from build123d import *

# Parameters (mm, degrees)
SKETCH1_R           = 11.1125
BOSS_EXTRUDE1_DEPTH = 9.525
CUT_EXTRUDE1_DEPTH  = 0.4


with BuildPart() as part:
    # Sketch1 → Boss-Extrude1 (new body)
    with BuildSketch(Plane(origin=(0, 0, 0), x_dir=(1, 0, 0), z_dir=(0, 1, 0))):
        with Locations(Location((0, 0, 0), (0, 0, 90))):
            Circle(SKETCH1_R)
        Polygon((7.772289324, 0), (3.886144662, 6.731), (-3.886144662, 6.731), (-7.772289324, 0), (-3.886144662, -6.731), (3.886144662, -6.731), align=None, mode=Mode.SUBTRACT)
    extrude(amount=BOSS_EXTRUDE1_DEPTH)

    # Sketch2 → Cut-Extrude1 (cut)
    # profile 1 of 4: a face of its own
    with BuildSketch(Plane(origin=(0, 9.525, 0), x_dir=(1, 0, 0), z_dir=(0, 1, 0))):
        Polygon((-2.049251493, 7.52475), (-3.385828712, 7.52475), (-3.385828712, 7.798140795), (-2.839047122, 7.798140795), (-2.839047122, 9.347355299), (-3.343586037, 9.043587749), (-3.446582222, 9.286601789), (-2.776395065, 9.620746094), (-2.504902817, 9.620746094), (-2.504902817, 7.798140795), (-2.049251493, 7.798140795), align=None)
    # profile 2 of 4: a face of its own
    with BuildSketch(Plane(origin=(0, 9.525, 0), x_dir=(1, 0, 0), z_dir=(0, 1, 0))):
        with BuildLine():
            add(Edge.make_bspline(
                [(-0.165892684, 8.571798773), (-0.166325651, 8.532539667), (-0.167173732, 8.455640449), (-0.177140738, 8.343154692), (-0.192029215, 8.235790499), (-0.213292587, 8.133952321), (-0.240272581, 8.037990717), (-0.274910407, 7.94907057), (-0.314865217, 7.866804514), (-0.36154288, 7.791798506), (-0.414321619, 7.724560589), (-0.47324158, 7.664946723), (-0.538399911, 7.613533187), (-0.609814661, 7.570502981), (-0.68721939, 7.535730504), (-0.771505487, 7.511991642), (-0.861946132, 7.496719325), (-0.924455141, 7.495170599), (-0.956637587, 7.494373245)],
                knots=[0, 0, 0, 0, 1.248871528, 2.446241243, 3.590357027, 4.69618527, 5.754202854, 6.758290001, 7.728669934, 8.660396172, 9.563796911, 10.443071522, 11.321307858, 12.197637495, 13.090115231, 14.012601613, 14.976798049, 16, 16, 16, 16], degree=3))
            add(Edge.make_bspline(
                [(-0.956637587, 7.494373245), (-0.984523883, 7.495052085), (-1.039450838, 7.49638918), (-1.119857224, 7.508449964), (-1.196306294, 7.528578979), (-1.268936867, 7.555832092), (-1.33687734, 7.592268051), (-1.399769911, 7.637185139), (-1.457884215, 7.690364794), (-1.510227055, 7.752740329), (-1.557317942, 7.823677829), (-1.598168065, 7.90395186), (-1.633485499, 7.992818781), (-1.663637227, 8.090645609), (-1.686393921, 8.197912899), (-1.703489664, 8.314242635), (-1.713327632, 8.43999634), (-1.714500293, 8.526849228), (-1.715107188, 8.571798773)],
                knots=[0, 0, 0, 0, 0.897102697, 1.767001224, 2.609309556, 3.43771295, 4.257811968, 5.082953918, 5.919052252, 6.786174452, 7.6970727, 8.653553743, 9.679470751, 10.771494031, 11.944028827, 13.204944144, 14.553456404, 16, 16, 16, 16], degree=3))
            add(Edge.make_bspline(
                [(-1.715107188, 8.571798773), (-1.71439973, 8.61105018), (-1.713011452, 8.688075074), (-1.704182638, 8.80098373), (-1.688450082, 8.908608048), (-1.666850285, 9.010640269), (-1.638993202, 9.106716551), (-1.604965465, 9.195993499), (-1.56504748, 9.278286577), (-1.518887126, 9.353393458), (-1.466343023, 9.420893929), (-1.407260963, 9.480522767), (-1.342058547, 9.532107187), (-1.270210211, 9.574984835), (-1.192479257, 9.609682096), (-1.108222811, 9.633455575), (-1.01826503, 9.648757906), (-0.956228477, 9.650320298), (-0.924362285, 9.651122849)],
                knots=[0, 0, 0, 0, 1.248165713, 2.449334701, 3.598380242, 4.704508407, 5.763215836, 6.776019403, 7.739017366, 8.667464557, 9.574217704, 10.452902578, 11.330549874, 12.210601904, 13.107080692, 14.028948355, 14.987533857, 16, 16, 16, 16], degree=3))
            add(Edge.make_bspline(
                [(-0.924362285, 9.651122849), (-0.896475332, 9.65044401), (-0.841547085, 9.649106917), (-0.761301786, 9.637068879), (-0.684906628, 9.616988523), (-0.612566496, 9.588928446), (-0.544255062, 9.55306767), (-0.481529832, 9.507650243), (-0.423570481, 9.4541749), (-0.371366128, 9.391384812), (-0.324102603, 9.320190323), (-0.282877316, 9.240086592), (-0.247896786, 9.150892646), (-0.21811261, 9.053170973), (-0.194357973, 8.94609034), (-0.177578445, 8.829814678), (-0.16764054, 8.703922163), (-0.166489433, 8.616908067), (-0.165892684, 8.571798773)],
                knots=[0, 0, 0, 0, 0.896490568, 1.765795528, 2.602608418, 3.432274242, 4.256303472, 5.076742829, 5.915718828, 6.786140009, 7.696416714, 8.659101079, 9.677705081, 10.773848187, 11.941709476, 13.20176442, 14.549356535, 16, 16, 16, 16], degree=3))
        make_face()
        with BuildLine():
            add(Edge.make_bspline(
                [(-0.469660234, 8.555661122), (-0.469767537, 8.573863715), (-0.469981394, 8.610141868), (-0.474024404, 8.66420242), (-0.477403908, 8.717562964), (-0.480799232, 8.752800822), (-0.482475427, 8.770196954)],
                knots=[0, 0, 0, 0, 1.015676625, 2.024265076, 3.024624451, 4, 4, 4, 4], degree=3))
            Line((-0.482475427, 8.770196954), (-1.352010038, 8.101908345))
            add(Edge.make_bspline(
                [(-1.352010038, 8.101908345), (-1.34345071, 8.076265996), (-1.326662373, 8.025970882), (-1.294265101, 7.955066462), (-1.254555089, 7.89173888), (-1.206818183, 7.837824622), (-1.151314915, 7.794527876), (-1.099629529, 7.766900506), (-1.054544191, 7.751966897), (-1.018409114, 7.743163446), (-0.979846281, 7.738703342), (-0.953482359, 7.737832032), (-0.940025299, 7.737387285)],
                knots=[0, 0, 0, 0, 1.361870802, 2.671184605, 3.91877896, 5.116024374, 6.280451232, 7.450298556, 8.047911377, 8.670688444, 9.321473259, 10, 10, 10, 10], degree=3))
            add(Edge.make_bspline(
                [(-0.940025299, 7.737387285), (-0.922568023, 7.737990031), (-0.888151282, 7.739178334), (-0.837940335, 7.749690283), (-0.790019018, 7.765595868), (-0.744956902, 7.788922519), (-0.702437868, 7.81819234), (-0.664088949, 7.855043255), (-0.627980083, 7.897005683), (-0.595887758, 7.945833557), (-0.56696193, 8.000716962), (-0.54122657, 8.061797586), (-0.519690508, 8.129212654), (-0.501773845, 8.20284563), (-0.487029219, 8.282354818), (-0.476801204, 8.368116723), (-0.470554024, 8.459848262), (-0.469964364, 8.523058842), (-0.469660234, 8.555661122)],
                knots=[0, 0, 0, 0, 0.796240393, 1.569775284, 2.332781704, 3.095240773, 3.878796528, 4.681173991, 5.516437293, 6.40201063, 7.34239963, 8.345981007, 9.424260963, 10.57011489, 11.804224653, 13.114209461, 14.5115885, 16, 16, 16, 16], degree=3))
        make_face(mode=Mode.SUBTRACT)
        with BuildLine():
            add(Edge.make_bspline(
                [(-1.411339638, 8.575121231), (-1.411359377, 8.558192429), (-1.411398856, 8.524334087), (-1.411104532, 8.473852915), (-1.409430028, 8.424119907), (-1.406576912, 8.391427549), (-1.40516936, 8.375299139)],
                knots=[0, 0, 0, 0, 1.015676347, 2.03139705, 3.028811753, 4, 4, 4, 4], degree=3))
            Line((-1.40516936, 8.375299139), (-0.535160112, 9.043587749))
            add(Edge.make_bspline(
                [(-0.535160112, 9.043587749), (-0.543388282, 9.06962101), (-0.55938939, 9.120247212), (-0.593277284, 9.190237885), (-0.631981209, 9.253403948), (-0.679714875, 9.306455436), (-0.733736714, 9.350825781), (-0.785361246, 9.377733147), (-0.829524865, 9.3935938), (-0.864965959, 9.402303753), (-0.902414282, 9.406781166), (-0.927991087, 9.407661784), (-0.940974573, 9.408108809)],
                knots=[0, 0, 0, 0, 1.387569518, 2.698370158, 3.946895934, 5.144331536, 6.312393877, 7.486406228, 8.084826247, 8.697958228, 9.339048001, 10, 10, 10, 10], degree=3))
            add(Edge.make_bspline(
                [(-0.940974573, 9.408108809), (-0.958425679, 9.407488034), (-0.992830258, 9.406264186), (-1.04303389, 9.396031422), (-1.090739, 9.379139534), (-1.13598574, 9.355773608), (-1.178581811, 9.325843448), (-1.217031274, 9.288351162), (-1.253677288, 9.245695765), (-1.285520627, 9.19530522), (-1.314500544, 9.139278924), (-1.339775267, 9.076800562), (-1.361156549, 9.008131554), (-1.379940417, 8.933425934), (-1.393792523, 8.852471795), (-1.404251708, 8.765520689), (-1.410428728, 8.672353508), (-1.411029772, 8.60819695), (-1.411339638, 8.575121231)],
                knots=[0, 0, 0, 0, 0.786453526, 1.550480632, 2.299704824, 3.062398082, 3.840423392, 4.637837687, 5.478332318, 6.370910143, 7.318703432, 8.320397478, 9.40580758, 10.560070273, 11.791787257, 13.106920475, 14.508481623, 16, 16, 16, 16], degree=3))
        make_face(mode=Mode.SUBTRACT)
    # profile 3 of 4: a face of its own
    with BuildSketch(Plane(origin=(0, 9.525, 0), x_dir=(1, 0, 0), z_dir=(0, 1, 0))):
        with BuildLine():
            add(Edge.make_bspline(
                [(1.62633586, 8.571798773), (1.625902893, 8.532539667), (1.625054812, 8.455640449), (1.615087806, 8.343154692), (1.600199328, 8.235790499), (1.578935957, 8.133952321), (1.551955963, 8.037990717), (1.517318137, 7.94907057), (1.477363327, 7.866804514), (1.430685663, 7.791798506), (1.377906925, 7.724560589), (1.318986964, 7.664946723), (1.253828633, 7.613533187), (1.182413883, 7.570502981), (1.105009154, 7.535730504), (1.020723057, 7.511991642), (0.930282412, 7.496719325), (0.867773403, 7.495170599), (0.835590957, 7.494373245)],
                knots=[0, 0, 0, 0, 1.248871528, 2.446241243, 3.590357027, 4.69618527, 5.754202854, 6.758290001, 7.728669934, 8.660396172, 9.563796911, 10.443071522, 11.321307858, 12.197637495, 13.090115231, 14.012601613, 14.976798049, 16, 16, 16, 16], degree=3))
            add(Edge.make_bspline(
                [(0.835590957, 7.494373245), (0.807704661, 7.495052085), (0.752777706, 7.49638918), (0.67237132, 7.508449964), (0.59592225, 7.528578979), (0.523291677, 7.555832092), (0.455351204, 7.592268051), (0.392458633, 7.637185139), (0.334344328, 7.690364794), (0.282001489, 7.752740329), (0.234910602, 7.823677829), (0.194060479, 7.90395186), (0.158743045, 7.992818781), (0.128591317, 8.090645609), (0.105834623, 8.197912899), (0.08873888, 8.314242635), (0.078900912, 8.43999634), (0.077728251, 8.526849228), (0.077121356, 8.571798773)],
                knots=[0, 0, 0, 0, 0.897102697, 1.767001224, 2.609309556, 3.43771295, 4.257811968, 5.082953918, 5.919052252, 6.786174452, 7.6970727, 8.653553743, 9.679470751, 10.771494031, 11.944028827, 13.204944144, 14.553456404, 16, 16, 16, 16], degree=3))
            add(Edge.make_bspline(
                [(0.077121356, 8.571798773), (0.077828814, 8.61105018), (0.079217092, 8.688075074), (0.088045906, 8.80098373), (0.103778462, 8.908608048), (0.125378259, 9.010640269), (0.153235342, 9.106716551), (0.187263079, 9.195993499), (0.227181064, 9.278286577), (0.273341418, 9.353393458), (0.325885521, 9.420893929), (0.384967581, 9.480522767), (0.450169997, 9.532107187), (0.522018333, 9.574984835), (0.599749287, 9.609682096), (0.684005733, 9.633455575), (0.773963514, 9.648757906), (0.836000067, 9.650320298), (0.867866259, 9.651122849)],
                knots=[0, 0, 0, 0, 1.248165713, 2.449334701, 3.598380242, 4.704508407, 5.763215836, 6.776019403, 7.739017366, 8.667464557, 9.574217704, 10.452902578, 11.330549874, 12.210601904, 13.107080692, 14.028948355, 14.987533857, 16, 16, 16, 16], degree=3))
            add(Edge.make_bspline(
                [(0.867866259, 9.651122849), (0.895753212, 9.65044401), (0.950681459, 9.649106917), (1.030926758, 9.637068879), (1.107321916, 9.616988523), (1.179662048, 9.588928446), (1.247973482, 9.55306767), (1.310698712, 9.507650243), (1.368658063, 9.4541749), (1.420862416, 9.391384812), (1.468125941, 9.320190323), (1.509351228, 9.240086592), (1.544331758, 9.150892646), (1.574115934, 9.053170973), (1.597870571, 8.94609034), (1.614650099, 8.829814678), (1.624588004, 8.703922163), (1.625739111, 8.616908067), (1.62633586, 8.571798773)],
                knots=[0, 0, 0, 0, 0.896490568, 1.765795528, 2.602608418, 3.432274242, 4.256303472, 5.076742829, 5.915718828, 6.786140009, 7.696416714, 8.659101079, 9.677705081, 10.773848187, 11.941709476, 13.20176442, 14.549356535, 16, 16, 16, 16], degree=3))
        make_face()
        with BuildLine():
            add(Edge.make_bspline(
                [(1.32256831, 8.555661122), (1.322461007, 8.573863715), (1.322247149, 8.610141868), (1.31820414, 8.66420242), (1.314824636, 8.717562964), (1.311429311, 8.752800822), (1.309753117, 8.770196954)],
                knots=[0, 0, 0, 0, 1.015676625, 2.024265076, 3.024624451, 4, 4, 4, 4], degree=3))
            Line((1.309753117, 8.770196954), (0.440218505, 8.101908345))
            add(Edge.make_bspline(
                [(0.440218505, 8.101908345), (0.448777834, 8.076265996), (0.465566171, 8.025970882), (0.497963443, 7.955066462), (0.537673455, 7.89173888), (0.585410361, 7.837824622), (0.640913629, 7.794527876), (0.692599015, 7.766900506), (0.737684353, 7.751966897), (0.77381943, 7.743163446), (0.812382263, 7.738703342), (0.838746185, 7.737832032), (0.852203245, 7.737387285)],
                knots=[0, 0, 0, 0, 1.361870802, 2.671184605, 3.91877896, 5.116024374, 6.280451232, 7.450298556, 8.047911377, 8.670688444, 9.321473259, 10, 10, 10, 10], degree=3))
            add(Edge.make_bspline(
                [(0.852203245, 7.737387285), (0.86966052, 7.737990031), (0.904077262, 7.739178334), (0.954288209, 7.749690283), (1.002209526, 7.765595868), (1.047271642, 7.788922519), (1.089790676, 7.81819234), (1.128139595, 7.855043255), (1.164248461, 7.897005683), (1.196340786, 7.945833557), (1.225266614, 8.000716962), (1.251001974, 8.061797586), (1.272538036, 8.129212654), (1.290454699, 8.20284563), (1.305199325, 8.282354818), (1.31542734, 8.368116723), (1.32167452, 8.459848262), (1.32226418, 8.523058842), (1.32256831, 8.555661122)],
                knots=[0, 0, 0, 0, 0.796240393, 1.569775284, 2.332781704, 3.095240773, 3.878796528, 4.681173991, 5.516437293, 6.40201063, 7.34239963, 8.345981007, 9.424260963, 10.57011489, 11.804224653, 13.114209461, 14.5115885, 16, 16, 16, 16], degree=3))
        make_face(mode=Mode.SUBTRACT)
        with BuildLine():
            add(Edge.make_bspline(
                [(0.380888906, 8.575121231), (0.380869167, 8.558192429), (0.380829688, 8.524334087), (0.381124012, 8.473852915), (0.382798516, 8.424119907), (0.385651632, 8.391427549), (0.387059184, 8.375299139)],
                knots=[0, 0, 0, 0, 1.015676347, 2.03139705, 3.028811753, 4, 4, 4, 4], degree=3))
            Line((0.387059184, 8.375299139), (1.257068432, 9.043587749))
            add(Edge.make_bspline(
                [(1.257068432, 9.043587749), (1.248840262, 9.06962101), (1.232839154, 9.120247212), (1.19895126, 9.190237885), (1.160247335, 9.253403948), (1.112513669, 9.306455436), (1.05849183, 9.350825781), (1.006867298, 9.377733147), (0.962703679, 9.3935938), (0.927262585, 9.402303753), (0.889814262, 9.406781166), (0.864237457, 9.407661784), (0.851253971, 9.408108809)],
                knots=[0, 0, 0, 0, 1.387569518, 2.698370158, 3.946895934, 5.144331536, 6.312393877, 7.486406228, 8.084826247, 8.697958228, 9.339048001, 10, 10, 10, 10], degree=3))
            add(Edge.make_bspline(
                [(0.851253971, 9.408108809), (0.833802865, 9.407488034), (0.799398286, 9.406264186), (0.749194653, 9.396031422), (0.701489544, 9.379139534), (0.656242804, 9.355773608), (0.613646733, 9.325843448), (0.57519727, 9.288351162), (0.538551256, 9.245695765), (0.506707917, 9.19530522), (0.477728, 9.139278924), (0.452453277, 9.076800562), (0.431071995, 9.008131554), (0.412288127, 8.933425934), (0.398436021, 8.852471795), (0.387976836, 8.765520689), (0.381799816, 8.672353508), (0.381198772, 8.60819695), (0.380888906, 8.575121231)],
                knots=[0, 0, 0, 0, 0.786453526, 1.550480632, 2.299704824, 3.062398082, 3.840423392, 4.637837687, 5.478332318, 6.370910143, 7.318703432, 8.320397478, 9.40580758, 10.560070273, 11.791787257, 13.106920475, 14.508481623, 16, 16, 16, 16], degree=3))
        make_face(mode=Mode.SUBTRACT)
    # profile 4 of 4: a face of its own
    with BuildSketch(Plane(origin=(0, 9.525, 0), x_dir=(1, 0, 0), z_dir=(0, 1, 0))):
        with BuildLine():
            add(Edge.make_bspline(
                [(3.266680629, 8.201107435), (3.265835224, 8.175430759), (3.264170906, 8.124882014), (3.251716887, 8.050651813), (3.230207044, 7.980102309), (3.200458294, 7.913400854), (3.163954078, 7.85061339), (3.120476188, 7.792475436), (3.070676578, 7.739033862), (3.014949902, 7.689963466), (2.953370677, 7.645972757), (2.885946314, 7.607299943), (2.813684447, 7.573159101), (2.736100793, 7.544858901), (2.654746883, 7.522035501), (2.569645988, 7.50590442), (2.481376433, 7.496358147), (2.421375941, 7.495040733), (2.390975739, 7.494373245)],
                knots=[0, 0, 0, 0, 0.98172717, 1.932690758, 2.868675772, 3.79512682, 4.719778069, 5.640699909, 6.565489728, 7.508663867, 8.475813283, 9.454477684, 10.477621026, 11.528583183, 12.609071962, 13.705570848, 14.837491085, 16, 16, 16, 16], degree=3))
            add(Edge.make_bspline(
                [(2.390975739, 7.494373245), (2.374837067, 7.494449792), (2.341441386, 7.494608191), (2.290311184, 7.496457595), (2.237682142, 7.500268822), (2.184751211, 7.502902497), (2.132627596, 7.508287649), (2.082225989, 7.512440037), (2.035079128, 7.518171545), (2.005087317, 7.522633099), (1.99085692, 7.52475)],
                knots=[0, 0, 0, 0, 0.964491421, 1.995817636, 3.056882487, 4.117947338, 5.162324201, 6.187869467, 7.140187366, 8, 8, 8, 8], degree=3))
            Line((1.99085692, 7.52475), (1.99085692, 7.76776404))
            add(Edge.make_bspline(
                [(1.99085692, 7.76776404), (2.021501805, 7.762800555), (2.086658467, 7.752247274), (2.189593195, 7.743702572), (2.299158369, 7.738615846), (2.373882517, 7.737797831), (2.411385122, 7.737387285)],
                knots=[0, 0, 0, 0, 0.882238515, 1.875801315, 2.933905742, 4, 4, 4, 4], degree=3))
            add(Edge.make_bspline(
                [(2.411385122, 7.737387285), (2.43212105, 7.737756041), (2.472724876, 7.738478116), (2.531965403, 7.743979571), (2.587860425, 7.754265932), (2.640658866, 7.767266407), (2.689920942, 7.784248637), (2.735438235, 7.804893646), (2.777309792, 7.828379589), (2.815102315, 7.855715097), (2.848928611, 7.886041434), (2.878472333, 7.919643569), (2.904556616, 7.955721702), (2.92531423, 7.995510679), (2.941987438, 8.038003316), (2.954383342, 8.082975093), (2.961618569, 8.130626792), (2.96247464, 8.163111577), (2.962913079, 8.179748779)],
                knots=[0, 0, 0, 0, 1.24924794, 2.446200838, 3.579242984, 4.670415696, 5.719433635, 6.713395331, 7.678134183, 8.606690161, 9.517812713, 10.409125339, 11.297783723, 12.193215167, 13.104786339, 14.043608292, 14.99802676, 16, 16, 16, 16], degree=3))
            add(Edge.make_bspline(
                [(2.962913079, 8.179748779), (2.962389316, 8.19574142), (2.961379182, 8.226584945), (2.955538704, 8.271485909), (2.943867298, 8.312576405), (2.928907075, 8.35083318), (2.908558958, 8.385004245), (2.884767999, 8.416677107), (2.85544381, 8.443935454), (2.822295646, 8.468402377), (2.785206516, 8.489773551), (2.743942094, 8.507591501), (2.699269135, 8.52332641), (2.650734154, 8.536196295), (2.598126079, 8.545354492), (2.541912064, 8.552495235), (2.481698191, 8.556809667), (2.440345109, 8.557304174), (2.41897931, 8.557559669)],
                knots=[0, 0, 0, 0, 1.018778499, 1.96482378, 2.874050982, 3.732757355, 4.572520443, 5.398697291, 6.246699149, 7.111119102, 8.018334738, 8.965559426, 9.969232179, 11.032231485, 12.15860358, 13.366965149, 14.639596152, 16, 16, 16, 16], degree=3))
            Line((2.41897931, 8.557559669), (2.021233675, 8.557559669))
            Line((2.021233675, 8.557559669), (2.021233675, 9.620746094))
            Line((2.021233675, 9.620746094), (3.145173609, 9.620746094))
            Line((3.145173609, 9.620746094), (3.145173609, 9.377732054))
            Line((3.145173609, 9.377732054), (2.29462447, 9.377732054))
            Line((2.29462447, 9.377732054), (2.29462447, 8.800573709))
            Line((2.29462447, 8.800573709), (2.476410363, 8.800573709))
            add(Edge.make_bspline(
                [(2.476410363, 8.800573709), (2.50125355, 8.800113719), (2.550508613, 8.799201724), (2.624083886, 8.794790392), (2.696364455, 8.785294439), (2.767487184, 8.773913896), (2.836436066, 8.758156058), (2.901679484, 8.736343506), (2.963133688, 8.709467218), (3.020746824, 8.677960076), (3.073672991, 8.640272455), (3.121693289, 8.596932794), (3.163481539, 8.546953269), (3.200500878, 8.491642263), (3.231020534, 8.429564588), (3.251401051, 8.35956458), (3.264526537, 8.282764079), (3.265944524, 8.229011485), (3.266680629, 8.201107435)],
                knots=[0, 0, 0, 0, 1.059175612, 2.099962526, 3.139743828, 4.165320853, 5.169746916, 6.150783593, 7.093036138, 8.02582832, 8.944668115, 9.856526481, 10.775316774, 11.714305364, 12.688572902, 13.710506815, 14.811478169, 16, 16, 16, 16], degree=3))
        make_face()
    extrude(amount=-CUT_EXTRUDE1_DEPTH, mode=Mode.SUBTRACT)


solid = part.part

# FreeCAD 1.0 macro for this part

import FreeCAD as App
import Part
import Sketcher
from FreeCAD import Vector
Q = App.Units.Quantity

doc = App.newDocument("Part")
body = doc.addObject("PartDesign::Body", "Body")

sketch1 = body.newObject("Sketcher::SketchObject", "Sketch")
sketch1.AttachmentSupport = (doc.getObject("XZ_Plane"), [""])
sketch1.MapMode = "FlatFace"
sketch1.addGeometry(Part.Circle(Vector(0, 0, 0), Vector(0, 0, 1), 11), False)
sketch1.addGeometry(Part.LineSegment(Vector(4, -7, 0), Vector(8, 0, 0)), False)
sketch1.addGeometry(Part.LineSegment(Vector(8, 0, 0), Vector(4, 7, 0)), False)
sketch1.addGeometry(Part.LineSegment(Vector(4, 7, 0), Vector(-4, 7, 0)), False)
sketch1.addGeometry(Part.LineSegment(Vector(-4, 7, 0), Vector(-8, 0, 0)), False)
sketch1.addGeometry(Part.LineSegment(Vector(-8, 0, 0), Vector(-4, -7, 0)), False)
sketch1.addGeometry(Part.LineSegment(Vector(-4, -7, 0), Vector(4, -7, 0)), False)
sketch1.addConstraint(Sketcher.Constraint("Coincident", 1, 2, 2, 1))
sketch1.addConstraint(Sketcher.Constraint("Coincident", 2, 2, 3, 1))
sketch1.addConstraint(Sketcher.Constraint("Coincident", 3, 2, 4, 1))
sketch1.addConstraint(Sketcher.Constraint("Coincident", 4, 2, 5, 1))
sketch1.addConstraint(Sketcher.Constraint("Coincident", 5, 2, 6, 1))
sketch1.addConstraint(Sketcher.Constraint("Coincident", 6, 2, 1, 1))
sketch1.addConstraint(Sketcher.Constraint("Horizontal", 3))
sketch1.addConstraint(Sketcher.Constraint("Horizontal", 6))
sketch1.addConstraint(Sketcher.Constraint("Coincident", 0, 3, -1, 1))
sketch1.addConstraint(Sketcher.Constraint("Symmetric", 1, 2, 4, 2, -1, 1))
sketch1.addConstraint(Sketcher.Constraint("Symmetric", 2, 2, 5, 2, -1, 1))
sketch1.addConstraint(Sketcher.Constraint("PointOnObject", 1, 2, -1))
sketch1.addConstraint(Sketcher.Constraint("Parallel", 1, 4))
sketch1.addConstraint(Sketcher.Constraint("Vertical", 3, 2, 5, 2))
sketch1.addConstraint(Sketcher.Constraint("Diameter", 0, Q("0.875 in")))
sketch1.addConstraint(Sketcher.Constraint("Angle", 1, Q("60 deg")))
sketch1.addConstraint(Sketcher.Constraint("DistanceY", 5, 2, 3, 2, Q("0.53 in")))
sketch1.addConstraint(Sketcher.Constraint("DistanceX", 3, 2, 3, 1, Q("7.772289 mm")))
pad1 = body.newObject("PartDesign::Pad", "Pad")
pad1.Profile = sketch1
pad1.Length = Q("0.375 in")
pad1.Reversed = True

sketch2 = body.newObject("Sketcher::SketchObject", "Sketch001")
sketch2.AttachmentSupport = (doc.getObject("XZ_Plane"), [""])
sketch2.MapMode = "FlatFace"
sketch2.AttachmentOffset = App.Placement(Vector(0, 0, -0.375 * 25.4), App.Rotation())
sketch2.addGeometry(Part.LineSegment(Vector(-3.385829, -7.52475, 0), Vector(-2.049251, -7.52475, 0)), False)
sketch2.addGeometry(Part.LineSegment(Vector(-2.049251, -7.52475, 0), Vector(-2.049251, -7.798141, 0)), False)
sketch2.addGeometry(Part.LineSegment(Vector(-2.049251, -7.798141, 0), Vector(-2.504903, -7.798141, 0)), False)
sketch2.addGeometry(Part.LineSegment(Vector(-2.504903, -7.798141, 0), Vector(-2.504903, -9.620746, 0)), False)
sketch2.addGeometry(Part.LineSegment(Vector(-2.504903, -9.620746, 0), Vector(-2.776395, -9.620746, 0)), False)
sketch2.addGeometry(Part.LineSegment(Vector(-2.776395, -9.620746, 0), Vector(-3.446582, -9.286602, 0)), False)
sketch2.addGeometry(Part.LineSegment(Vector(-3.446582, -9.286602, 0), Vector(-3.343586, -9.043588, 0)), False)
sketch2.addGeometry(Part.LineSegment(Vector(-3.343586, -9.043588, 0), Vector(-2.839047, -9.347355, 0)), False)
sketch2.addGeometry(Part.LineSegment(Vector(-2.839047, -9.347355, 0), Vector(-2.839047, -7.798141, 0)), False)
sketch2.addGeometry(Part.LineSegment(Vector(-2.839047, -7.798141, 0), Vector(-3.385829, -7.798141, 0)), False)
sketch2.addGeometry(Part.LineSegment(Vector(-3.385829, -7.798141, 0), Vector(-3.385829, -7.52475, 0)), False)
sketch2.addGeometry(Part.BSplineCurve([Vector(-0.165893, -8.571799, 0), Vector(-0.166326, -8.53254, 0), Vector(-0.167174, -8.45564, 0), Vector(-0.177141, -8.343155, 0), Vector(-0.192029, -8.23579, 0), Vector(-0.213293, -8.133952, 0), Vector(-0.240273, -8.037991, 0), Vector(-0.27491, -7.949071, 0), Vector(-0.314865, -7.866805, 0), Vector(-0.361543, -7.791799, 0), Vector(-0.414322, -7.724561, 0), Vector(-0.473242, -7.664947, 0), Vector(-0.5384, -7.613533, 0), Vector(-0.609815, -7.570503, 0), Vector(-0.687219, -7.535731, 0), Vector(-0.771505, -7.511992, 0), Vector(-0.861946, -7.496719, 0), Vector(-0.924455, -7.495171, 0), Vector(-0.956638, -7.494373, 0)], [4, 1, 1, 1, 1, 1, 1, 1, 1, 1, 1, 1, 1, 1, 1, 1, 4], [0, 1.248871528, 2.446241243, 3.590357027, 4.69618527, 5.754202854, 6.758290001, 7.728669934, 8.660396172, 9.563796911, 10.443071522, 11.321307858, 12.197637495, 13.090115231, 14.012601613, 14.976798049, 16], False, 3, [1, 1, 1, 1, 1, 1, 1, 1, 1, 1, 1, 1, 1, 1, 1, 1, 1, 1, 1], False), False)
sketch2.addGeometry(Part.BSplineCurve([Vector(-0.924362, -9.651123, 0), Vector(-0.896475, -9.650444, 0), Vector(-0.841547, -9.649107, 0), Vector(-0.761302, -9.637069, 0), Vector(-0.684907, -9.616989, 0), Vector(-0.612566, -9.588928, 0), Vector(-0.544255, -9.553068, 0), Vector(-0.48153, -9.50765, 0), Vector(-0.42357, -9.454175, 0), Vector(-0.371366, -9.391385, 0), Vector(-0.324103, -9.32019, 0), Vector(-0.282877, -9.240087, 0), Vector(-0.247897, -9.150893, 0), Vector(-0.218113, -9.053171, 0), Vector(-0.194358, -8.94609, 0), Vector(-0.177578, -8.829815, 0), Vector(-0.167641, -8.703922, 0), Vector(-0.166489, -8.616908, 0), Vector(-0.165893, -8.571799, 0)], [4, 1, 1, 1, 1, 1, 1, 1, 1, 1, 1, 1, 1, 1, 1, 1, 4], [0, 0.896490568, 1.765795528, 2.602608418, 3.432274242, 4.256303472, 5.076742829, 5.915718828, 6.786140009, 7.696416714, 8.659101079, 9.677705081, 10.773848187, 11.941709476, 13.20176442, 14.549356535, 16], False, 3, [1, 1, 1, 1, 1, 1, 1, 1, 1, 1, 1, 1, 1, 1, 1, 1, 1, 1, 1], False), False)
sketch2.addGeometry(Part.BSplineCurve([Vector(-1.715107, -8.571799, 0), Vector(-1.7144, -8.61105, 0), Vector(-1.713011, -8.688075, 0), Vector(-1.704183, -8.800984, 0), Vector(-1.68845, -8.908608, 0), Vector(-1.66685, -9.01064, 0), Vector(-1.638993, -9.106717, 0), Vector(-1.604965, -9.195993, 0), Vector(-1.565047, -9.278287, 0), Vector(-1.518887, -9.353393, 0), Vector(-1.466343, -9.420894, 0), Vector(-1.407261, -9.480523, 0), Vector(-1.342059, -9.532107, 0), Vector(-1.27021, -9.574985, 0), Vector(-1.192479, -9.609682, 0), Vector(-1.108223, -9.633456, 0), Vector(-1.018265, -9.648758, 0), Vector(-0.956228, -9.65032, 0), Vector(-0.924362, -9.651123, 0)], [4, 1, 1, 1, 1, 1, 1, 1, 1, 1, 1, 1, 1, 1, 1, 1, 4], [0, 1.248165713, 2.449334701, 3.598380242, 4.704508407, 5.763215836, 6.776019403, 7.739017366, 8.667464557, 9.574217704, 10.452902578, 11.330549874, 12.210601904, 13.107080692, 14.028948355, 14.987533857, 16], False, 3, [1, 1, 1, 1, 1, 1, 1, 1, 1, 1, 1, 1, 1, 1, 1, 1, 1, 1, 1], False), False)
sketch2.addGeometry(Part.BSplineCurve([Vector(-0.956638, -7.494373, 0), Vector(-0.984524, -7.495052, 0), Vector(-1.039451, -7.496389, 0), Vector(-1.119857, -7.50845, 0), Vector(-1.196306, -7.528579, 0), Vector(-1.268937, -7.555832, 0), Vector(-1.336877, -7.592268, 0), Vector(-1.39977, -7.637185, 0), Vector(-1.457884, -7.690365, 0), Vector(-1.510227, -7.75274, 0), Vector(-1.557318, -7.823678, 0), Vector(-1.598168, -7.903952, 0), Vector(-1.633485, -7.992819, 0), Vector(-1.663637, -8.090646, 0), Vector(-1.686394, -8.197913, 0), Vector(-1.70349, -8.314243, 0), Vector(-1.713328, -8.439996, 0), Vector(-1.7145, -8.526849, 0), Vector(-1.715107, -8.571799, 0)], [4, 1, 1, 1, 1, 1, 1, 1, 1, 1, 1, 1, 1, 1, 1, 1, 4], [0, 0.897102697, 1.767001224, 2.609309556, 3.43771295, 4.257811968, 5.082953918, 5.919052252, 6.786174452, 7.6970727, 8.653553743, 9.679470751, 10.771494031, 11.944028827, 13.204944144, 14.553456404, 16], False, 3, [1, 1, 1, 1, 1, 1, 1, 1, 1, 1, 1, 1, 1, 1, 1, 1, 1, 1, 1], False), False)
sketch2.addGeometry(Part.BSplineCurve([Vector(-0.940025, -7.737387, 0), Vector(-0.922568, -7.73799, 0), Vector(-0.888151, -7.739178, 0), Vector(-0.83794, -7.74969, 0), Vector(-0.790019, -7.765596, 0), Vector(-0.744957, -7.788923, 0), Vector(-0.702438, -7.818192, 0), Vector(-0.664089, -7.855043, 0), Vector(-0.62798, -7.897006, 0), Vector(-0.595888, -7.945834, 0), Vector(-0.566962, -8.000717, 0), Vector(-0.541227, -8.061798, 0), Vector(-0.519691, -8.129213, 0), Vector(-0.501774, -8.202846, 0), Vector(-0.487029, -8.282355, 0), Vector(-0.476801, -8.368117, 0), Vector(-0.470554, -8.459848, 0), Vector(-0.469964, -8.523059, 0), Vector(-0.46966, -8.555661, 0)], [4, 1, 1, 1, 1, 1, 1, 1, 1, 1, 1, 1, 1, 1, 1, 1, 4], [0, 0.796240393, 1.569775284, 2.332781704, 3.095240773, 3.878796528, 4.681173991, 5.516437293, 6.40201063, 7.34239963, 8.345981007, 9.424260963, 10.57011489, 11.804224653, 13.114209461, 14.5115885, 16], False, 3, [1, 1, 1, 1, 1, 1, 1, 1, 1, 1, 1, 1, 1, 1, 1, 1, 1, 1, 1], False), False)
sketch2.addGeometry(Part.BSplineCurve([Vector(-1.35201, -8.101908, 0), Vector(-1.343451, -8.076266, 0), Vector(-1.326662, -8.025971, 0), Vector(-1.294265, -7.955066, 0), Vector(-1.254555, -7.891739, 0), Vector(-1.206818, -7.837825, 0), Vector(-1.151315, -7.794528, 0), Vector(-1.09963, -7.766901, 0), Vector(-1.054544, -7.751967, 0), Vector(-1.018409, -7.743163, 0), Vector(-0.979846, -7.738703, 0), Vector(-0.953482, -7.737832, 0), Vector(-0.940025, -7.737387, 0)], [4, 1, 1, 1, 1, 1, 1, 1, 1, 1, 4], [0, 1.361870802, 2.671184605, 3.91877896, 5.116024374, 6.280451232, 7.450298556, 8.047911377, 8.670688444, 9.321473259, 10], False, 3, [1, 1, 1, 1, 1, 1, 1, 1, 1, 1, 1, 1, 1], False), False)
sketch2.addGeometry(Part.LineSegment(Vector(-1.35201, -8.101908, 0), Vector(-0.482475, -8.770197, 0)), False)
sketch2.addGeometry(Part.BSplineCurve([Vector(-0.46966, -8.555661, 0), Vector(-0.469768, -8.573864, 0), Vector(-0.469981, -8.610142, 0), Vector(-0.474024, -8.664202, 0), Vector(-0.477404, -8.717563, 0), Vector(-0.480799, -8.752801, 0), Vector(-0.482475, -8.770197, 0)], [4, 1, 1, 1, 4], [0, 1.015676625, 2.024265076, 3.024624451, 4], False, 3, [1, 1, 1, 1, 1, 1, 1], False), False)
sketch2.addGeometry(Part.BSplineCurve([Vector(-0.940975, -9.408109, 0), Vector(-0.958426, -9.407488, 0), Vector(-0.99283, -9.406264, 0), Vector(-1.043034, -9.396031, 0), Vector(-1.090739, -9.37914, 0), Vector(-1.135986, -9.355774, 0), Vector(-1.178582, -9.325843, 0), Vector(-1.217031, -9.288351, 0), Vector(-1.253677, -9.245696, 0), Vector(-1.285521, -9.195305, 0), Vector(-1.314501, -9.139279, 0), Vector(-1.339775, -9.076801, 0), Vector(-1.361157, -9.008132, 0), Vector(-1.37994, -8.933426, 0), Vector(-1.393793, -8.852472, 0), Vector(-1.404252, -8.765521, 0), Vector(-1.410429, -8.672354, 0), Vector(-1.41103, -8.608197, 0), Vector(-1.41134, -8.575121, 0)], [4, 1, 1, 1, 1, 1, 1, 1, 1, 1, 1, 1, 1, 1, 1, 1, 4], [0, 0.786453526, 1.550480632, 2.299704824, 3.062398082, 3.840423392, 4.637837687, 5.478332318, 6.370910143, 7.318703432, 8.320397478, 9.40580758, 10.560070273, 11.791787257, 13.106920475, 14.508481623, 16], False, 3, [1, 1, 1, 1, 1, 1, 1, 1, 1, 1, 1, 1, 1, 1, 1, 1, 1, 1, 1], False), False)
sketch2.addGeometry(Part.BSplineCurve([Vector(-0.53516, -9.043588, 0), Vector(-0.543388, -9.069621, 0), Vector(-0.559389, -9.120247, 0), Vector(-0.593277, -9.190238, 0), Vector(-0.631981, -9.253404, 0), Vector(-0.679715, -9.306455, 0), Vector(-0.733737, -9.350826, 0), Vector(-0.785361, -9.377733, 0), Vector(-0.829525, -9.393594, 0), Vector(-0.864966, -9.402304, 0), Vector(-0.902414, -9.406781, 0), Vector(-0.927991, -9.407662, 0), Vector(-0.940975, -9.408109, 0)], [4, 1, 1, 1, 1, 1, 1, 1, 1, 1, 4], [0, 1.387569518, 2.698370158, 3.946895934, 5.144331536, 6.312393877, 7.486406228, 8.084826247, 8.697958228, 9.339048001, 10], False, 3, [1, 1, 1, 1, 1, 1, 1, 1, 1, 1, 1, 1, 1], False), False)
sketch2.addGeometry(Part.LineSegment(Vector(-0.53516, -9.043588, 0), Vector(-1.405169, -8.375299, 0)), False)
sketch2.addGeometry(Part.BSplineCurve([Vector(-1.41134, -8.575121, 0), Vector(-1.411359, -8.558192, 0), Vector(-1.411399, -8.524334, 0), Vector(-1.411105, -8.473853, 0), Vector(-1.40943, -8.42412, 0), Vector(-1.406577, -8.391428, 0), Vector(-1.405169, -8.375299, 0)], [4, 1, 1, 1, 4], [0, 1.015676347, 2.03139705, 3.028811753, 4], False, 3, [1, 1, 1, 1, 1, 1, 1], False), False)
sketch2.addGeometry(Part.BSplineCurve([Vector(1.626336, -8.571799, 0), Vector(1.625903, -8.53254, 0), Vector(1.625055, -8.45564, 0), Vector(1.615088, -8.343155, 0), Vector(1.600199, -8.23579, 0), Vector(1.578936, -8.133952, 0), Vector(1.551956, -8.037991, 0), Vector(1.517318, -7.949071, 0), Vector(1.477363, -7.866805, 0), Vector(1.430686, -7.791799, 0), Vector(1.377907, -7.724561, 0), Vector(1.318987, -7.664947, 0), Vector(1.253829, -7.613533, 0), Vector(1.182414, -7.570503, 0), Vector(1.105009, -7.535731, 0), Vector(1.020723, -7.511992, 0), Vector(0.930282, -7.496719, 0), Vector(0.867773, -7.495171, 0), Vector(0.835591, -7.494373, 0)], [4, 1, 1, 1, 1, 1, 1, 1, 1, 1, 1, 1, 1, 1, 1, 1, 4], [0, 1.248871528, 2.446241243, 3.590357027, 4.69618527, 5.754202854, 6.758290001, 7.728669934, 8.660396172, 9.563796911, 10.443071522, 11.321307858, 12.197637495, 13.090115231, 14.012601613, 14.976798049, 16], False, 3, [1, 1, 1, 1, 1, 1, 1, 1, 1, 1, 1, 1, 1, 1, 1, 1, 1, 1, 1], False), False)
sketch2.addGeometry(Part.BSplineCurve([Vector(0.867866, -9.651123, 0), Vector(0.895753, -9.650444, 0), Vector(0.950681, -9.649107, 0), Vector(1.030927, -9.637069, 0), Vector(1.107322, -9.616989, 0), Vector(1.179662, -9.588928, 0), Vector(1.247973, -9.553068, 0), Vector(1.310699, -9.50765, 0), Vector(1.368658, -9.454175, 0), Vector(1.420862, -9.391385, 0), Vector(1.468126, -9.32019, 0), Vector(1.509351, -9.240087, 0), Vector(1.544332, -9.150893, 0), Vector(1.574116, -9.053171, 0), Vector(1.597871, -8.94609, 0), Vector(1.61465, -8.829815, 0), Vector(1.624588, -8.703922, 0), Vector(1.625739, -8.616908, 0), Vector(1.626336, -8.571799, 0)], [4, 1, 1, 1, 1, 1, 1, 1, 1, 1, 1, 1, 1, 1, 1, 1, 4], [0, 0.896490568, 1.765795528, 2.602608418, 3.432274242, 4.256303472, 5.076742829, 5.915718828, 6.786140009, 7.696416714, 8.659101079, 9.677705081, 10.773848187, 11.941709476, 13.20176442, 14.549356535, 16], False, 3, [1, 1, 1, 1, 1, 1, 1, 1, 1, 1, 1, 1, 1, 1, 1, 1, 1, 1, 1], False), False)
sketch2.addGeometry(Part.BSplineCurve([Vector(0.077121, -8.571799, 0), Vector(0.077829, -8.61105, 0), Vector(0.079217, -8.688075, 0), Vector(0.088046, -8.800984, 0), Vector(0.103778, -8.908608, 0), Vector(0.125378, -9.01064, 0), Vector(0.153235, -9.106717, 0), Vector(0.187263, -9.195993, 0), Vector(0.227181, -9.278287, 0), Vector(0.273341, -9.353393, 0), Vector(0.325886, -9.420894, 0), Vector(0.384968, -9.480523, 0), Vector(0.45017, -9.532107, 0), Vector(0.522018, -9.574985, 0), Vector(0.599749, -9.609682, 0), Vector(0.684006, -9.633456, 0), Vector(0.773964, -9.648758, 0), Vector(0.836, -9.65032, 0), Vector(0.867866, -9.651123, 0)], [4, 1, 1, 1, 1, 1, 1, 1, 1, 1, 1, 1, 1, 1, 1, 1, 4], [0, 1.248165713, 2.449334701, 3.598380242, 4.704508407, 5.763215836, 6.776019403, 7.739017366, 8.667464557, 9.574217704, 10.452902578, 11.330549874, 12.210601904, 13.107080692, 14.028948355, 14.987533857, 16], False, 3, [1, 1, 1, 1, 1, 1, 1, 1, 1, 1, 1, 1, 1, 1, 1, 1, 1, 1, 1], False), False)
sketch2.addGeometry(Part.BSplineCurve([Vector(0.835591, -7.494373, 0), Vector(0.807705, -7.495052, 0), Vector(0.752778, -7.496389, 0), Vector(0.672371, -7.50845, 0), Vector(0.595922, -7.528579, 0), Vector(0.523292, -7.555832, 0), Vector(0.455351, -7.592268, 0), Vector(0.392459, -7.637185, 0), Vector(0.334344, -7.690365, 0), Vector(0.282001, -7.75274, 0), Vector(0.234911, -7.823678, 0), Vector(0.19406, -7.903952, 0), Vector(0.158743, -7.992819, 0), Vector(0.128591, -8.090646, 0), Vector(0.105835, -8.197913, 0), Vector(0.088739, -8.314243, 0), Vector(0.078901, -8.439996, 0), Vector(0.077728, -8.526849, 0), Vector(0.077121, -8.571799, 0)], [4, 1, 1, 1, 1, 1, 1, 1, 1, 1, 1, 1, 1, 1, 1, 1, 4], [0, 0.897102697, 1.767001224, 2.609309556, 3.43771295, 4.257811968, 5.082953918, 5.919052252, 6.786174452, 7.6970727, 8.653553743, 9.679470751, 10.771494031, 11.944028827, 13.204944144, 14.553456404, 16], False, 3, [1, 1, 1, 1, 1, 1, 1, 1, 1, 1, 1, 1, 1, 1, 1, 1, 1, 1, 1], False), False)
sketch2.addGeometry(Part.BSplineCurve([Vector(0.852203, -7.737387, 0), Vector(0.869661, -7.73799, 0), Vector(0.904077, -7.739178, 0), Vector(0.954288, -7.74969, 0), Vector(1.00221, -7.765596, 0), Vector(1.047272, -7.788923, 0), Vector(1.089791, -7.818192, 0), Vector(1.12814, -7.855043, 0), Vector(1.164248, -7.897006, 0), Vector(1.196341, -7.945834, 0), Vector(1.225267, -8.000717, 0), Vector(1.251002, -8.061798, 0), Vector(1.272538, -8.129213, 0), Vector(1.290455, -8.202846, 0), Vector(1.305199, -8.282355, 0), Vector(1.315427, -8.368117, 0), Vector(1.321675, -8.459848, 0), Vector(1.322264, -8.523059, 0), Vector(1.322568, -8.555661, 0)], [4, 1, 1, 1, 1, 1, 1, 1, 1, 1, 1, 1, 1, 1, 1, 1, 4], [0, 0.796240393, 1.569775284, 2.332781704, 3.095240773, 3.878796528, 4.681173991, 5.516437293, 6.40201063, 7.34239963, 8.345981007, 9.424260963, 10.57011489, 11.804224653, 13.114209461, 14.5115885, 16], False, 3, [1, 1, 1, 1, 1, 1, 1, 1, 1, 1, 1, 1, 1, 1, 1, 1, 1, 1, 1], False), False)
sketch2.addGeometry(Part.BSplineCurve([Vector(0.440219, -8.101908, 0), Vector(0.448778, -8.076266, 0), Vector(0.465566, -8.025971, 0), Vector(0.497963, -7.955066, 0), Vector(0.537673, -7.891739, 0), Vector(0.58541, -7.837825, 0), Vector(0.640914, -7.794528, 0), Vector(0.692599, -7.766901, 0), Vector(0.737684, -7.751967, 0), Vector(0.773819, -7.743163, 0), Vector(0.812382, -7.738703, 0), Vector(0.838746, -7.737832, 0), Vector(0.852203, -7.737387, 0)], [4, 1, 1, 1, 1, 1, 1, 1, 1, 1, 4], [0, 1.361870802, 2.671184605, 3.91877896, 5.116024374, 6.280451232, 7.450298556, 8.047911377, 8.670688444, 9.321473259, 10], False, 3, [1, 1, 1, 1, 1, 1, 1, 1, 1, 1, 1, 1, 1], False), False)
sketch2.addGeometry(Part.LineSegment(Vector(0.440219, -8.101908, 0), Vector(1.309753, -8.770197, 0)), False)
sketch2.addGeometry(Part.BSplineCurve([Vector(1.322568, -8.555661, 0), Vector(1.322461, -8.573864, 0), Vector(1.322247, -8.610142, 0), Vector(1.318204, -8.664202, 0), Vector(1.314825, -8.717563, 0), Vector(1.311429, -8.752801, 0), Vector(1.309753, -8.770197, 0)], [4, 1, 1, 1, 4], [0, 1.015676625, 2.024265076, 3.024624451, 4], False, 3, [1, 1, 1, 1, 1, 1, 1], False), False)
sketch2.addGeometry(Part.BSplineCurve([Vector(0.851254, -9.408109, 0), Vector(0.833803, -9.407488, 0), Vector(0.799398, -9.406264, 0), Vector(0.749195, -9.396031, 0), Vector(0.70149, -9.37914, 0), Vector(0.656243, -9.355774, 0), Vector(0.613647, -9.325843, 0), Vector(0.575197, -9.288351, 0), Vector(0.538551, -9.245696, 0), Vector(0.506708, -9.195305, 0), Vector(0.477728, -9.139279, 0), Vector(0.452453, -9.076801, 0), Vector(0.431072, -9.008132, 0), Vector(0.412288, -8.933426, 0), Vector(0.398436, -8.852472, 0), Vector(0.387977, -8.765521, 0), Vector(0.3818, -8.672354, 0), Vector(0.381199, -8.608197, 0), Vector(0.380889, -8.575121, 0)], [4, 1, 1, 1, 1, 1, 1, 1, 1, 1, 1, 1, 1, 1, 1, 1, 4], [0, 0.786453526, 1.550480632, 2.299704824, 3.062398082, 3.840423392, 4.637837687, 5.478332318, 6.370910143, 7.318703432, 8.320397478, 9.40580758, 10.560070273, 11.791787257, 13.106920475, 14.508481623, 16], False, 3, [1, 1, 1, 1, 1, 1, 1, 1, 1, 1, 1, 1, 1, 1, 1, 1, 1, 1, 1], False), False)
sketch2.addGeometry(Part.BSplineCurve([Vector(1.257068, -9.043588, 0), Vector(1.24884, -9.069621, 0), Vector(1.232839, -9.120247, 0), Vector(1.198951, -9.190238, 0), Vector(1.160247, -9.253404, 0), Vector(1.112514, -9.306455, 0), Vector(1.058492, -9.350826, 0), Vector(1.006867, -9.377733, 0), Vector(0.962704, -9.393594, 0), Vector(0.927263, -9.402304, 0), Vector(0.889814, -9.406781, 0), Vector(0.864237, -9.407662, 0), Vector(0.851254, -9.408109, 0)], [4, 1, 1, 1, 1, 1, 1, 1, 1, 1, 4], [0, 1.387569518, 2.698370158, 3.946895934, 5.144331536, 6.312393877, 7.486406228, 8.084826247, 8.697958228, 9.339048001, 10], False, 3, [1, 1, 1, 1, 1, 1, 1, 1, 1, 1, 1, 1, 1], False), False)
sketch2.addGeometry(Part.LineSegment(Vector(1.257068, -9.043588, 0), Vector(0.387059, -8.375299, 0)), False)
sketch2.addGeometry(Part.BSplineCurve([Vector(0.380889, -8.575121, 0), Vector(0.380869, -8.558192, 0), Vector(0.38083, -8.524334, 0), Vector(0.381124, -8.473853, 0), Vector(0.382799, -8.42412, 0), Vector(0.385652, -8.391428, 0), Vector(0.387059, -8.375299, 0)], [4, 1, 1, 1, 4], [0, 1.015676347, 2.03139705, 3.028811753, 4], False, 3, [1, 1, 1, 1, 1, 1, 1], False), False)
sketch2.addGeometry(Part.BSplineCurve([Vector(3.266681, -8.201107, 0), Vector(3.265835, -8.175431, 0), Vector(3.264171, -8.124882, 0), Vector(3.251717, -8.050652, 0), Vector(3.230207, -7.980102, 0), Vector(3.200458, -7.913401, 0), Vector(3.163954, -7.850613, 0), Vector(3.120476, -7.792475, 0), Vector(3.070677, -7.739034, 0), Vector(3.01495, -7.689963, 0), Vector(2.953371, -7.645973, 0), Vector(2.885946, -7.6073, 0), Vector(2.813684, -7.573159, 0), Vector(2.736101, -7.544859, 0), Vector(2.654747, -7.522036, 0), Vector(2.569646, -7.505904, 0), Vector(2.481376, -7.496358, 0), Vector(2.421376, -7.495041, 0), Vector(2.390976, -7.494373, 0)], [4, 1, 1, 1, 1, 1, 1, 1, 1, 1, 1, 1, 1, 1, 1, 1, 4], [0, 0.98172717, 1.932690758, 2.868675772, 3.79512682, 4.719778069, 5.640699909, 6.565489728, 7.508663867, 8.475813283, 9.454477684, 10.477621026, 11.528583183, 12.609071962, 13.705570848, 14.837491085, 16], False, 3, [1, 1, 1, 1, 1, 1, 1, 1, 1, 1, 1, 1, 1, 1, 1, 1, 1, 1, 1], False), False)
sketch2.addGeometry(Part.BSplineCurve([Vector(2.47641, -8.800574, 0), Vector(2.501254, -8.800114, 0), Vector(2.550509, -8.799202, 0), Vector(2.624084, -8.79479, 0), Vector(2.696364, -8.785294, 0), Vector(2.767487, -8.773914, 0), Vector(2.836436, -8.758156, 0), Vector(2.901679, -8.736344, 0), Vector(2.963134, -8.709467, 0), Vector(3.020747, -8.67796, 0), Vector(3.073673, -8.640272, 0), Vector(3.121693, -8.596933, 0), Vector(3.163482, -8.546953, 0), Vector(3.200501, -8.491642, 0), Vector(3.231021, -8.429565, 0), Vector(3.251401, -8.359565, 0), Vector(3.264527, -8.282764, 0), Vector(3.265945, -8.229011, 0), Vector(3.266681, -8.201107, 0)], [4, 1, 1, 1, 1, 1, 1, 1, 1, 1, 1, 1, 1, 1, 1, 1, 4], [0, 1.059175612, 2.099962526, 3.139743828, 4.165320853, 5.169746916, 6.150783593, 7.093036138, 8.02582832, 8.944668115, 9.856526481, 10.775316774, 11.714305364, 12.688572902, 13.710506815, 14.811478169, 16], False, 3, [1, 1, 1, 1, 1, 1, 1, 1, 1, 1, 1, 1, 1, 1, 1, 1, 1, 1, 1], False), False)
sketch2.addGeometry(Part.LineSegment(Vector(2.47641, -8.800574, 0), Vector(2.294624, -8.800574, 0)), False)
sketch2.addGeometry(Part.LineSegment(Vector(2.294624, -8.800574, 0), Vector(2.294624, -9.377732, 0)), False)
sketch2.addGeometry(Part.LineSegment(Vector(2.294624, -9.377732, 0), Vector(3.145174, -9.377732, 0)), False)
sketch2.addGeometry(Part.LineSegment(Vector(3.145174, -9.377732, 0), Vector(3.145174, -9.620746, 0)), False)
sketch2.addGeometry(Part.LineSegment(Vector(3.145174, -9.620746, 0), Vector(2.021234, -9.620746, 0)), False)
sketch2.addGeometry(Part.LineSegment(Vector(2.021234, -9.620746, 0), Vector(2.021234, -8.55756, 0)), False)
sketch2.addGeometry(Part.LineSegment(Vector(2.021234, -8.55756, 0), Vector(2.418979, -8.55756, 0)), False)
sketch2.addGeometry(Part.BSplineCurve([Vector(2.962913, -8.179749, 0), Vector(2.962389, -8.195741, 0), Vector(2.961379, -8.226585, 0), Vector(2.955539, -8.271486, 0), Vector(2.943867, -8.312576, 0), Vector(2.928907, -8.350833, 0), Vector(2.908559, -8.385004, 0), Vector(2.884768, -8.416677, 0), Vector(2.855444, -8.443935, 0), Vector(2.822296, -8.468402, 0), Vector(2.785207, -8.489774, 0), Vector(2.743942, -8.507592, 0), Vector(2.699269, -8.523326, 0), Vector(2.650734, -8.536196, 0), Vector(2.598126, -8.545354, 0), Vector(2.541912, -8.552495, 0), Vector(2.481698, -8.55681, 0), Vector(2.440345, -8.557304, 0), Vector(2.418979, -8.55756, 0)], [4, 1, 1, 1, 1, 1, 1, 1, 1, 1, 1, 1, 1, 1, 1, 1, 4], [0, 1.018778499, 1.96482378, 2.874050982, 3.732757355, 4.572520443, 5.398697291, 6.246699149, 7.111119102, 8.018334738, 8.965559426, 9.969232179, 11.032231485, 12.15860358, 13.366965149, 14.639596152, 16], False, 3, [1, 1, 1, 1, 1, 1, 1, 1, 1, 1, 1, 1, 1, 1, 1, 1, 1, 1, 1], False), False)
sketch2.addGeometry(Part.BSplineCurve([Vector(2.411385, -7.737387, 0), Vector(2.432121, -7.737756, 0), Vector(2.472725, -7.738478, 0), Vector(2.531965, -7.74398, 0), Vector(2.58786, -7.754266, 0), Vector(2.640659, -7.767266, 0), Vector(2.689921, -7.784249, 0), Vector(2.735438, -7.804894, 0), Vector(2.77731, -7.82838, 0), Vector(2.815102, -7.855715, 0), Vector(2.848929, -7.886041, 0), Vector(2.878472, -7.919644, 0), Vector(2.904557, -7.955722, 0), Vector(2.925314, -7.995511, 0), Vector(2.941987, -8.038003, 0), Vector(2.954383, -8.082975, 0), Vector(2.961619, -8.130627, 0), Vector(2.962475, -8.163112, 0), Vector(2.962913, -8.179749, 0)], [4, 1, 1, 1, 1, 1, 1, 1, 1, 1, 1, 1, 1, 1, 1, 1, 4], [0, 1.24924794, 2.446200838, 3.579242984, 4.670415696, 5.719433635, 6.713395331, 7.678134183, 8.606690161, 9.517812713, 10.409125339, 11.297783723, 12.193215167, 13.104786339, 14.043608292, 14.99802676, 16], False, 3, [1, 1, 1, 1, 1, 1, 1, 1, 1, 1, 1, 1, 1, 1, 1, 1, 1, 1, 1], False), False)
sketch2.addGeometry(Part.BSplineCurve([Vector(1.990857, -7.767764, 0), Vector(2.021502, -7.762801, 0), Vector(2.086658, -7.752247, 0), Vector(2.189593, -7.743703, 0), Vector(2.299158, -7.738616, 0), Vector(2.373883, -7.737798, 0), Vector(2.411385, -7.737387, 0)], [4, 1, 1, 1, 4], [0, 0.882238515, 1.875801315, 2.933905742, 4], False, 3, [1, 1, 1, 1, 1, 1, 1], False), False)
sketch2.addGeometry(Part.LineSegment(Vector(1.990857, -7.767764, 0), Vector(1.990857, -7.52475, 0)), False)
sketch2.addGeometry(Part.BSplineCurve([Vector(2.390976, -7.494373, 0), Vector(2.374837, -7.49445, 0), Vector(2.341441, -7.494608, 0), Vector(2.290311, -7.496458, 0), Vector(2.237682, -7.500269, 0), Vector(2.184751, -7.502902, 0), Vector(2.132628, -7.508288, 0), Vector(2.082226, -7.51244, 0), Vector(2.035079, -7.518172, 0), Vector(2.005087, -7.522633, 0), Vector(1.990857, -7.52475, 0)], [4, 1, 1, 1, 1, 1, 1, 1, 4], [0, 0.964491421, 1.995817636, 3.056882487, 4.117947338, 5.162324201, 6.187869467, 7.140187366, 8], False, 3, [1, 1, 1, 1, 1, 1, 1, 1, 1, 1, 1], False), False)
sketch2.addConstraint(Sketcher.Constraint("Block", 11))
sketch2.addConstraint(Sketcher.Constraint("Block", 12))
sketch2.addConstraint(Sketcher.Constraint("Block", 13))
sketch2.addConstraint(Sketcher.Constraint("Block", 14))
sketch2.addConstraint(Sketcher.Constraint("Block", 15))
sketch2.addConstraint(Sketcher.Constraint("Block", 16))
sketch2.addConstraint(Sketcher.Constraint("Block", 18))
sketch2.addConstraint(Sketcher.Constraint("Block", 19))
sketch2.addConstraint(Sketcher.Constraint("Block", 20))
sketch2.addConstraint(Sketcher.Constraint("Block", 22))
sketch2.addConstraint(Sketcher.Constraint("Block", 23))
sketch2.addConstraint(Sketcher.Constraint("Block", 24))
sketch2.addConstraint(Sketcher.Constraint("Block", 25))
sketch2.addConstraint(Sketcher.Constraint("Block", 26))
sketch2.addConstraint(Sketcher.Constraint("Block", 27))
sketch2.addConstraint(Sketcher.Constraint("Block", 28))
sketch2.addConstraint(Sketcher.Constraint("Block", 30))
sketch2.addConstraint(Sketcher.Constraint("Block", 31))
sketch2.addConstraint(Sketcher.Constraint("Block", 32))
sketch2.addConstraint(Sketcher.Constraint("Block", 34))
sketch2.addConstraint(Sketcher.Constraint("Block", 35))
sketch2.addConstraint(Sketcher.Constraint("Block", 36))
sketch2.addConstraint(Sketcher.Constraint("Block", 44))
sketch2.addConstraint(Sketcher.Constraint("Block", 45))
sketch2.addConstraint(Sketcher.Constraint("Block", 46))
sketch2.addConstraint(Sketcher.Constraint("Block", 48))
sketch2.addConstraint(Sketcher.Constraint("Coincident", 0, 2, 1, 1))
sketch2.addConstraint(Sketcher.Constraint("Coincident", 1, 2, 2, 1))
sketch2.addConstraint(Sketcher.Constraint("Coincident", 2, 2, 3, 1))
sketch2.addConstraint(Sketcher.Constraint("Coincident", 3, 2, 4, 1))
sketch2.addConstraint(Sketcher.Constraint("Coincident", 4, 2, 5, 1))
sketch2.addConstraint(Sketcher.Constraint("Coincident", 5, 2, 6, 1))
sketch2.addConstraint(Sketcher.Constraint("Coincident", 6, 2, 7, 1))
sketch2.addConstraint(Sketcher.Constraint("Coincident", 7, 2, 8, 1))
sketch2.addConstraint(Sketcher.Constraint("Coincident", 8, 2, 9, 1))
sketch2.addConstraint(Sketcher.Constraint("Coincident", 9, 2, 10, 1))
sketch2.addConstraint(Sketcher.Constraint("Coincident", 10, 2, 0, 1))
sketch2.addConstraint(Sketcher.Constraint("Coincident", 16, 1, 17, 1))
sketch2.addConstraint(Sketcher.Constraint("Coincident", 17, 2, 18, 2))
sketch2.addConstraint(Sketcher.Constraint("Coincident", 20, 1, 21, 1))
sketch2.addConstraint(Sketcher.Constraint("Coincident", 21, 2, 22, 2))
sketch2.addConstraint(Sketcher.Constraint("Coincident", 28, 1, 29, 1))
sketch2.addConstraint(Sketcher.Constraint("Coincident", 29, 2, 30, 2))
sketch2.addConstraint(Sketcher.Constraint("Coincident", 32, 1, 33, 1))
sketch2.addConstraint(Sketcher.Constraint("Coincident", 33, 2, 34, 2))
sketch2.addConstraint(Sketcher.Constraint("Coincident", 36, 1, 37, 1))
sketch2.addConstraint(Sketcher.Constraint("Coincident", 37, 2, 38, 1))
sketch2.addConstraint(Sketcher.Constraint("Coincident", 38, 2, 39, 1))
sketch2.addConstraint(Sketcher.Constraint("Coincident", 39, 2, 40, 1))
sketch2.addConstraint(Sketcher.Constraint("Coincident", 40, 2, 41, 1))
sketch2.addConstraint(Sketcher.Constraint("Coincident", 41, 2, 42, 1))
sketch2.addConstraint(Sketcher.Constraint("Coincident", 42, 2, 43, 1))
sketch2.addConstraint(Sketcher.Constraint("Coincident", 43, 2, 44, 2))
sketch2.addConstraint(Sketcher.Constraint("Coincident", 46, 1, 47, 1))
sketch2.addConstraint(Sketcher.Constraint("Coincident", 47, 2, 48, 2))
sketch2.addConstraint(Sketcher.Constraint("Horizontal", 0))
sketch2.addConstraint(Sketcher.Constraint("Vertical", 1))
sketch2.addConstraint(Sketcher.Constraint("Horizontal", 2))
sketch2.addConstraint(Sketcher.Constraint("Vertical", 3))
sketch2.addConstraint(Sketcher.Constraint("Horizontal", 4))
sketch2.addConstraint(Sketcher.Constraint("Vertical", 8))
sketch2.addConstraint(Sketcher.Constraint("Horizontal", 9))
sketch2.addConstraint(Sketcher.Constraint("Vertical", 10))
sketch2.addConstraint(Sketcher.Constraint("Horizontal", 37))
sketch2.addConstraint(Sketcher.Constraint("Vertical", 38))
sketch2.addConstraint(Sketcher.Constraint("Horizontal", 39))
sketch2.addConstraint(Sketcher.Constraint("Vertical", 40))
sketch2.addConstraint(Sketcher.Constraint("Horizontal", 41))
sketch2.addConstraint(Sketcher.Constraint("Vertical", 42))
sketch2.addConstraint(Sketcher.Constraint("Horizontal", 43))
sketch2.addConstraint(Sketcher.Constraint("DistanceX", 2, 2, 2, 1, Q("0.455651 mm")))
sketch2.addConstraint(Sketcher.Constraint("DistanceX", 9, 2, 9, 1, Q("0.546782 mm")))
sketch2.addConstraint(Sketcher.Constraint("DistanceX", 39, 1, 39, 2, Q("0.850549 mm")))
sketch2.addConstraint(Sketcher.Constraint("DistanceX", 41, 2, 41, 1, Q("1.12394 mm")))
sketch2.addConstraint(Sketcher.Constraint("DistanceY", 1, 2, 1, 1, Q("0.273391 mm")))
sketch2.addConstraint(Sketcher.Constraint("DistanceY", 10, 1, 10, 2, Q("0.273391 mm")))
sketch2.addConstraint(Sketcher.Constraint("DistanceY", 38, 2, 38, 1, Q("0.577158 mm")))
sketch2.addConstraint(Sketcher.Constraint("DistanceY", 5, 2, -1, 1, Q("9.286602 mm")))
sketch2.addConstraint(Sketcher.Constraint("DistanceX", 17, 2, 37, 2, Q("2.7771 mm")))
sketch2.addConstraint(Sketcher.Constraint("Distance", 6, Q("0.263939 mm")))
sketch2.addConstraint(Sketcher.Constraint("DistanceX", 0, 1, 0, 2, Q("1.336577 mm")))
sketch2.addConstraint(Sketcher.Constraint("DistanceX", 4, 2, 4, 1, Q("0.271492 mm")))
sketch2.addConstraint(Sketcher.Constraint("DistanceY", 3, 2, 3, 1, Q("1.822605 mm")))
sketch2.addConstraint(Sketcher.Constraint("DistanceY", 8, 1, 8, 2, Q("1.549215 mm")))
sketch2.addConstraint(Sketcher.Constraint("DistanceY", 40, 2, 40, 1, Q("0.243014 mm")))
sketch2.addConstraint(Sketcher.Constraint("DistanceX", 0, 2, -1, 1, Q("2.049251 mm")))
sketch2.addConstraint(Sketcher.Constraint("DistanceY", 0, 2, -1, 1, Q("7.52475 mm")))
sketch2.addConstraint(Sketcher.Constraint("DistanceX", 5, 2, 3, 2, Q("0.941679 mm")))
sketch2.addConstraint(Sketcher.Constraint("DistanceX", 6, 2, 4, 2, Q("0.567191 mm")))
pocket1 = body.newObject("PartDesign::Pocket", "Pocket")
pocket1.Profile = sketch2
pocket1.Length = 0.4
pocket1.Reversed = True

doc.recompute()
